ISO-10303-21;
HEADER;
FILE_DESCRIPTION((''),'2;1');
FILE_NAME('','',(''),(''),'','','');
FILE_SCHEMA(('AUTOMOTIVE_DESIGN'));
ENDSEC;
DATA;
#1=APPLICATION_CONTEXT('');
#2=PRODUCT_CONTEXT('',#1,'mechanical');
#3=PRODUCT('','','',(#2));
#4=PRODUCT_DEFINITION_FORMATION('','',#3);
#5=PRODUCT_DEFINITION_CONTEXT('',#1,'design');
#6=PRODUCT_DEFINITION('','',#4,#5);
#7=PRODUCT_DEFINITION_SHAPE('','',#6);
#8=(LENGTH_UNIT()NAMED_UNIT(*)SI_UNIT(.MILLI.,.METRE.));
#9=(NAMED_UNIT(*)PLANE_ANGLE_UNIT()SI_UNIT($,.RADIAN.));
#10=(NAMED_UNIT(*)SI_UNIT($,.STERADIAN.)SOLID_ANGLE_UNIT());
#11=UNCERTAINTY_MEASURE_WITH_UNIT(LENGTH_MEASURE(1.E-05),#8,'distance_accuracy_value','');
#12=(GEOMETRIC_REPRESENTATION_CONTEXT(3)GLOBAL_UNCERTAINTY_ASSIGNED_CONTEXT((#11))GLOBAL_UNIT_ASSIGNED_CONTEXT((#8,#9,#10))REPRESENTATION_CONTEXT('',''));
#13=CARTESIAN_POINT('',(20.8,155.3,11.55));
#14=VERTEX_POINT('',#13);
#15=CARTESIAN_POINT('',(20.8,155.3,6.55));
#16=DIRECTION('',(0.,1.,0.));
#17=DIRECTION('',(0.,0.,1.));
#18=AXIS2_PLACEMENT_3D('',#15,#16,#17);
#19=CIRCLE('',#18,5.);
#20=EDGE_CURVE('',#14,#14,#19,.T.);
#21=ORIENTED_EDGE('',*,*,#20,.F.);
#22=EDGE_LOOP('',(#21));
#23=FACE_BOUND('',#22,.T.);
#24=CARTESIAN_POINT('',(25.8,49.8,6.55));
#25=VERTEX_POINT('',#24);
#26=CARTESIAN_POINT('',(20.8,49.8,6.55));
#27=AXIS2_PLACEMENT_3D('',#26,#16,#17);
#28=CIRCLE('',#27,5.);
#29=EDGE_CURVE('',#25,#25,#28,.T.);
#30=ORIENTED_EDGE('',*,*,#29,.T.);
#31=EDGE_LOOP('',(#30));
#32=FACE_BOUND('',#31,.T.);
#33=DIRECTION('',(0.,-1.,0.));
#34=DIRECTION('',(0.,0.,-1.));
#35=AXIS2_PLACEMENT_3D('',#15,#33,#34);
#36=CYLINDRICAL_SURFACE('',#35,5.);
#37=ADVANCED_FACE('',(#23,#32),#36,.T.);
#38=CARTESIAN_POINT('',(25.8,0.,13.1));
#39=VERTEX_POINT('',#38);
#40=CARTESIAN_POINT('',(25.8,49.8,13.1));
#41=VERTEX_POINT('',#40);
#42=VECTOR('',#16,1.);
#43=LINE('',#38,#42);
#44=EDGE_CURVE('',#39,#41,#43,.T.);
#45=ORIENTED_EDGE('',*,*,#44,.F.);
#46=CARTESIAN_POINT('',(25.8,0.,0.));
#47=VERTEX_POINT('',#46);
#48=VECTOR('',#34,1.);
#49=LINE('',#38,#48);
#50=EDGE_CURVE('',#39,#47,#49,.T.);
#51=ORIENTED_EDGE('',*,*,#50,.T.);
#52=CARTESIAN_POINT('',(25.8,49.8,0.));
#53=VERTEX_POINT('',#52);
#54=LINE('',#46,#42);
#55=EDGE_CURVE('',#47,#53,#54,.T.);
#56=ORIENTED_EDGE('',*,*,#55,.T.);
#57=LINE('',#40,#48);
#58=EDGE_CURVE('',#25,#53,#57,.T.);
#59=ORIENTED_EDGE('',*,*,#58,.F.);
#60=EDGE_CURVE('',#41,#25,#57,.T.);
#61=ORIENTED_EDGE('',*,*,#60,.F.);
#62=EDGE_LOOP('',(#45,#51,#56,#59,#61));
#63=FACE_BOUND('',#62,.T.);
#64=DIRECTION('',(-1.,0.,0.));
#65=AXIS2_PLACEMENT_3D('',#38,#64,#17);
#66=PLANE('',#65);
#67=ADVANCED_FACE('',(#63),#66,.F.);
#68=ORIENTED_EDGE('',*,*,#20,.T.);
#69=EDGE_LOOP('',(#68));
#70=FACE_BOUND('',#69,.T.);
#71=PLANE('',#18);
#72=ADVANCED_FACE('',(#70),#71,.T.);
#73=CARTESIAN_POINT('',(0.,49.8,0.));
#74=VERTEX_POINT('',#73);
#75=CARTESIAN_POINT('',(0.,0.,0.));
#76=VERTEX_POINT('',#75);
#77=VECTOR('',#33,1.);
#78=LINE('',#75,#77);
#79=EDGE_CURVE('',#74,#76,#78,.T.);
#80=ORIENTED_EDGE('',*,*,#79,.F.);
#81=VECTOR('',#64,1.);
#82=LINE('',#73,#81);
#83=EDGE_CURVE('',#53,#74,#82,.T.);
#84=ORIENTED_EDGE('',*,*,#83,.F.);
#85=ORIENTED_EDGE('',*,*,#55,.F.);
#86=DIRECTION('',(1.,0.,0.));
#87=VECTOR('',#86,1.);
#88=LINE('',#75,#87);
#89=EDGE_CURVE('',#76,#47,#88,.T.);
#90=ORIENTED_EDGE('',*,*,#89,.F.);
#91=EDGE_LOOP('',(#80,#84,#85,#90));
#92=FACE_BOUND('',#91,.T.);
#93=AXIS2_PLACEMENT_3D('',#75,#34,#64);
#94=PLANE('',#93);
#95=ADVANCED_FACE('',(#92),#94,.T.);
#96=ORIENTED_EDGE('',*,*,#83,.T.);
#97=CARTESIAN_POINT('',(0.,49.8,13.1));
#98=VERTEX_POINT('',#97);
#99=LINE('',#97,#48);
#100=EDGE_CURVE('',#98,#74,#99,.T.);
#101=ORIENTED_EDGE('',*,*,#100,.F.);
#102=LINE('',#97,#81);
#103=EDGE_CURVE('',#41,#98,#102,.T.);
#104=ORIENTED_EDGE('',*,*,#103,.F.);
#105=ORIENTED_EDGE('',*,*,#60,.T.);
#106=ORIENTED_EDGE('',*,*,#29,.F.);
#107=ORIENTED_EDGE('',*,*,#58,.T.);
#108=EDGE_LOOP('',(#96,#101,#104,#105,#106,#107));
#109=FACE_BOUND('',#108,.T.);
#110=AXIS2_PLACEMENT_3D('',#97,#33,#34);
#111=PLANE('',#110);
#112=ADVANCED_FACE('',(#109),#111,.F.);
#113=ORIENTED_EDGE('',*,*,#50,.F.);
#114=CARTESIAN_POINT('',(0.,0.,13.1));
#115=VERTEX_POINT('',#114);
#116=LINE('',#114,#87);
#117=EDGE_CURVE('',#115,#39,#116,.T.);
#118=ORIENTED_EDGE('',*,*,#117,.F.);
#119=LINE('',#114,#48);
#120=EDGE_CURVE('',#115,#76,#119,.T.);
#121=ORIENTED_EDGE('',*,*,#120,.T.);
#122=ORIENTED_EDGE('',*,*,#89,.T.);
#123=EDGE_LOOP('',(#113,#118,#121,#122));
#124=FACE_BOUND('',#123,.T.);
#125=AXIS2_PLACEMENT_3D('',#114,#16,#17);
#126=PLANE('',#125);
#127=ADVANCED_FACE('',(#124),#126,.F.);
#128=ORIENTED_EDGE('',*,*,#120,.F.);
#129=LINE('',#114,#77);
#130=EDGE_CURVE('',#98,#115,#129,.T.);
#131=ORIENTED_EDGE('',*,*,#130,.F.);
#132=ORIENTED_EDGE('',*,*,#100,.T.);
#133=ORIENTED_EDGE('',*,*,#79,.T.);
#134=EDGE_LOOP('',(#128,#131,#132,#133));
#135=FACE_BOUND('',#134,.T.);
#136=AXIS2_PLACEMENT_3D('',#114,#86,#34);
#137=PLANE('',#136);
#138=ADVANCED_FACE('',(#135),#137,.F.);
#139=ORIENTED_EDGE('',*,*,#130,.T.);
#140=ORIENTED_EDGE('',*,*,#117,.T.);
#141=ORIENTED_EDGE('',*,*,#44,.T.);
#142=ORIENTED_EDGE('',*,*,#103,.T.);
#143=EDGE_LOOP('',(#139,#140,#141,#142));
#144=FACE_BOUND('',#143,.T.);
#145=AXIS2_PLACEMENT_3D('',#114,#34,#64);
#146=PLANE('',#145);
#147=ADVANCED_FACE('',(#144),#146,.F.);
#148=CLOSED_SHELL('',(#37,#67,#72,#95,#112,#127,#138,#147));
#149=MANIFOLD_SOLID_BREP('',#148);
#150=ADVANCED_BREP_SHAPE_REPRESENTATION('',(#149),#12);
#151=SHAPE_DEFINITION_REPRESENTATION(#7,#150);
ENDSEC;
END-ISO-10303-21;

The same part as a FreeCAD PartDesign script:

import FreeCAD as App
import Part
import Sketcher
from FreeCAD import Vector


def add_polygon(sketch, points):
    """Adds a closed chain of lines whose ends are joined by coincident constraints."""
    first, n = sketch.GeometryCount, len(points)
    for a, b in zip(points, points[1:] + points[:1]):
        sketch.addGeometry(Part.LineSegment(App.Vector(*a, 0), App.Vector(*b, 0)), False)
    for i in range(n):
        sketch.addConstraint(Sketcher.Constraint("Coincident", first + i, 2, first + (i + 1) % n, 1))

doc = App.newDocument("Part")
body = doc.addObject("PartDesign::Body", "Body")

# Sketch on XY plane
sketch1 = body.newObject("Sketcher::SketchObject", "Sketch")
sketch1.AttachmentSupport = (doc.getObject("XY_Plane"), [""])
sketch1.MapMode = "FlatFace"
add_polygon(sketch1, [(0, 50), (0, 0), (26, 0), (26, 50)])  # lines 0-3
sketch1.addConstraint(Sketcher.Constraint("Vertical", 0))
sketch1.addConstraint(Sketcher.Constraint("Horizontal", 1))
sketch1.addConstraint(Sketcher.Constraint("Vertical", 2))
sketch1.addConstraint(Sketcher.Constraint("Horizontal", 3))
sketch1.addConstraint(Sketcher.Constraint("Coincident", 0, 2, -1, 1))
sketch1.addConstraint(Sketcher.Constraint("DistanceX", 1, 1, 1, 2, 25.8))
sketch1.addConstraint(Sketcher.Constraint("DistanceY", 0, 2, 0, 1, 49.8))
pad1 = body.newObject("PartDesign::Pad", "Pad")
pad1.Profile = sketch1
pad1.Length = 13.1

# Sketch on XZ plane
sketch2 = body.newObject("Sketcher::SketchObject", "Sketch001")
sketch2.AttachmentSupport = (doc.getObject("XZ_Plane"), [""])
sketch2.MapMode = "FlatFace"
sketch2.AttachmentOffset = App.Placement(Vector(0, 0, -49.8), App.Rotation())
sketch2.addGeometry(Part.Circle(Vector(21, 7, 0), Vector(0, 0, 1), 5), False)
sketch2.addConstraint(Sketcher.Constraint("Diameter", 0, 10.0))
sketch2.addConstraint(Sketcher.Constraint("DistanceX", -1, 1, 0, 3, 20.8))
sketch2.addConstraint(Sketcher.Constraint("DistanceY", -1, 1, 0, 3, 6.55))
pad2 = body.newObject("PartDesign::Pad", "Pad001")
pad2.Profile = sketch2
pad2.Length = 105.5
pad2.Reversed = True

doc.recompute()
